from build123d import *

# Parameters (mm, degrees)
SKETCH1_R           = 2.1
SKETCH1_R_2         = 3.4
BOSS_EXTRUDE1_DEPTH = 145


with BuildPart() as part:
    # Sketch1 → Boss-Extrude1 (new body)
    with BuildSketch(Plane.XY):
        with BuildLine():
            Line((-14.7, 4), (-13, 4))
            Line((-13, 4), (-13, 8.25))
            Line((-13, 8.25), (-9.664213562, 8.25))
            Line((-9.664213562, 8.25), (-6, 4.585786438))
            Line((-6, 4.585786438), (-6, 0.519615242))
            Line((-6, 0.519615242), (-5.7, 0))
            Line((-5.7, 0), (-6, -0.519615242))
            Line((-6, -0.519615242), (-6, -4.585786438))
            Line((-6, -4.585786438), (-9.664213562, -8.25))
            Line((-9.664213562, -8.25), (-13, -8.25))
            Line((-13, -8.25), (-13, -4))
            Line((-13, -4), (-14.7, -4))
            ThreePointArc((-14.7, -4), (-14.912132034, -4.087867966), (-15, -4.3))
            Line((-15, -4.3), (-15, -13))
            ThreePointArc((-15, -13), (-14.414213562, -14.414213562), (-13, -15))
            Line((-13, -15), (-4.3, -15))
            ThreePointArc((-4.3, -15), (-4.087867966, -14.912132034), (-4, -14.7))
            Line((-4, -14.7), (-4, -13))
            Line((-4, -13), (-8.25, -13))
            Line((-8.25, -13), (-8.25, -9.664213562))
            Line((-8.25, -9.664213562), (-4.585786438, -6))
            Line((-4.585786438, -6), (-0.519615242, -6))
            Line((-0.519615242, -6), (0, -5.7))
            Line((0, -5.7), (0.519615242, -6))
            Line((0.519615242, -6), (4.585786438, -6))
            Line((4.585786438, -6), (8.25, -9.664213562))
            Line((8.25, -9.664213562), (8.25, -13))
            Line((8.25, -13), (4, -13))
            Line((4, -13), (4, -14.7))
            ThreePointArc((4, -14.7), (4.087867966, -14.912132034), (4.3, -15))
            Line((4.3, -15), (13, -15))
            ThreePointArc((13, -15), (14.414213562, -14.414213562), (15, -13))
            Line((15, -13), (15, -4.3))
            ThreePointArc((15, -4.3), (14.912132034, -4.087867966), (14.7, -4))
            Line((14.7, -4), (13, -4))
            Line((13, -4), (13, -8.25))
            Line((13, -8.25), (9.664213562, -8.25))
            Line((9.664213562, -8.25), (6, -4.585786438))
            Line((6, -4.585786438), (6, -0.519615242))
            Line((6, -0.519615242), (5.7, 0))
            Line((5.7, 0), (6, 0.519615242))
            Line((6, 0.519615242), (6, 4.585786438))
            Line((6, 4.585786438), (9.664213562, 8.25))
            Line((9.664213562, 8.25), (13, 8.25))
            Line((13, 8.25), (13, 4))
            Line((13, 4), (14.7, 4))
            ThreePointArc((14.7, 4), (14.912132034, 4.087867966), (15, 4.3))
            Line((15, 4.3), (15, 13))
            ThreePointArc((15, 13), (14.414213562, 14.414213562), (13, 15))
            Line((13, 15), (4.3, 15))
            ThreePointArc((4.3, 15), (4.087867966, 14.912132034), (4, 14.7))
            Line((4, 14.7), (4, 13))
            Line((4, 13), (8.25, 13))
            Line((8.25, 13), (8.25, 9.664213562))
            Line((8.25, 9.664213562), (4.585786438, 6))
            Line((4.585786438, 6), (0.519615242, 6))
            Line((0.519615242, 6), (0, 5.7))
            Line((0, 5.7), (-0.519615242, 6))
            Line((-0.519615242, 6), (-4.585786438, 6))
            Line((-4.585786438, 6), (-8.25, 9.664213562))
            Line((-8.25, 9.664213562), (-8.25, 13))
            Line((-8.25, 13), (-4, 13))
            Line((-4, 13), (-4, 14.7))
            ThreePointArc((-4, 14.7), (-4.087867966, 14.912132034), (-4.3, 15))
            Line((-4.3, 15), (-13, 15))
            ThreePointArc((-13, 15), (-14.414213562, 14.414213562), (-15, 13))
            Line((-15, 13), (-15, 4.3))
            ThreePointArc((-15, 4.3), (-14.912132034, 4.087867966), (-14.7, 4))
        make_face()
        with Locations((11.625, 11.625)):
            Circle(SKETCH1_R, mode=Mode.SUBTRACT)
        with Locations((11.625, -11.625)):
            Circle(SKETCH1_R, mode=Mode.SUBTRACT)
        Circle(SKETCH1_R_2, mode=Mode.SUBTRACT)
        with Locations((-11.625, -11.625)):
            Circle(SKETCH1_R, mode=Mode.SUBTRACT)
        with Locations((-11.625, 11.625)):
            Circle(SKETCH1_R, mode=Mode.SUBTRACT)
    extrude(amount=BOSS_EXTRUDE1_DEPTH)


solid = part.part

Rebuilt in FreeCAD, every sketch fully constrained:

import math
import FreeCAD as App
import Part
import Sketcher
Q = App.Units.Quantity

doc = App.newDocument("Part")
body = doc.addObject("PartDesign::Body", "Body")

# Sketch on XY plane
sketch1 = body.newObject("Sketcher::SketchObject", "Sketch")
sketch1.AttachmentSupport = (doc.getObject("XY_Plane"), [""])
sketch1.MapMode = "FlatFace"
sketch1.addGeometry([
    Part.LineSegment(App.Vector(-14.7, 4, 0), App.Vector(-13, 4, 0)),  # 0
    Part.LineSegment(App.Vector(-13, 4, 0), App.Vector(-13, 8.25, 0)),  # 1
    Part.LineSegment(App.Vector(-13, 8.25, 0), App.Vector(-9.66, 8.25, 0)),  # 2
    Part.LineSegment(App.Vector(-9.66, 8.25, 0), App.Vector(-6, 4.59, 0)),  # 3
    Part.LineSegment(App.Vector(-6, 4.59, 0), App.Vector(-6, 0.52, 0)),  # 4
    Part.LineSegment(App.Vector(-6, 0.52, 0), App.Vector(-5.7, 0, 0)),  # 5
    Part.LineSegment(App.Vector(-5.7, 0, 0), App.Vector(-6, -0.52, 0)),  # 6
    Part.LineSegment(App.Vector(-6, -0.52, 0), App.Vector(-6, -4.59, 0)),  # 7
    Part.LineSegment(App.Vector(-6, -4.59, 0), App.Vector(-9.66, -8.25, 0)),  # 8
    Part.LineSegment(App.Vector(-9.66, -8.25, 0), App.Vector(-13, -8.25, 0)),  # 9
    Part.LineSegment(App.Vector(-13, -8.25, 0), App.Vector(-13, -4, 0)),  # 10
    Part.LineSegment(App.Vector(-13, -4, 0), App.Vector(-14.7, -4, 0)),  # 11
    Part.ArcOfCircle(Part.Circle(App.Vector(-14.7, -4.3, 0), App.Vector(0, 0, 1), 0.3), math.radians(90), math.radians(180)),  # 12
    Part.LineSegment(App.Vector(-15, -4.3, 0), App.Vector(-15, -13, 0)),  # 13
    Part.ArcOfCircle(Part.Circle(App.Vector(-13, -13, 0), App.Vector(0, 0, 1), 2), math.radians(-180), math.radians(-90)),  # 14
    Part.LineSegment(App.Vector(-13, -15, 0), App.Vector(-4.3, -15, 0)),  # 15
    Part.ArcOfCircle(Part.Circle(App.Vector(-4.3, -14.7, 0), App.Vector(0, 0, 1), 0.3), math.radians(-90), math.radians(0)),  # 16
    Part.LineSegment(App.Vector(-4, -14.7, 0), App.Vector(-4, -13, 0)),  # 17
    Part.LineSegment(App.Vector(-4, -13, 0), App.Vector(-8.25, -13, 0)),  # 18
    Part.LineSegment(App.Vector(-8.25, -13, 0), App.Vector(-8.25, -9.66, 0)),  # 19
    Part.LineSegment(App.Vector(-8.25, -9.66, 0), App.Vector(-4.59, -6, 0)),  # 20
    Part.LineSegment(App.Vector(-4.59, -6, 0), App.Vector(-0.52, -6, 0)),  # 21
    Part.LineSegment(App.Vector(-0.52, -6, 0), App.Vector(0, -5.7, 0)),  # 22
    Part.LineSegment(App.Vector(0, -5.7, 0), App.Vector(0.52, -6, 0)),  # 23
    Part.LineSegment(App.Vector(0.52, -6, 0), App.Vector(4.59, -6, 0)),  # 24
    Part.LineSegment(App.Vector(4.59, -6, 0), App.Vector(8.25, -9.66, 0)),  # 25
    Part.LineSegment(App.Vector(8.25, -9.66, 0), App.Vector(8.25, -13, 0)),  # 26
    Part.LineSegment(App.Vector(8.25, -13, 0), App.Vector(4, -13, 0)),  # 27
    Part.LineSegment(App.Vector(4, -13, 0), App.Vector(4, -14.7, 0)),  # 28
    Part.ArcOfCircle(Part.Circle(App.Vector(4.3, -14.7, 0), App.Vector(0, 0, 1), 0.3), math.radians(-180), math.radians(-90)),  # 29
    Part.LineSegment(App.Vector(4.3, -15, 0), App.Vector(13, -15, 0)),  # 30
    Part.ArcOfCircle(Part.Circle(App.Vector(13, -13, 0), App.Vector(0, 0, 1), 2), math.radians(-90), math.radians(0)),  # 31
    Part.LineSegment(App.Vector(15, -13, 0), App.Vector(15, -4.3, 0)),  # 32
    Part.ArcOfCircle(Part.Circle(App.Vector(14.7, -4.3, 0), App.Vector(0, 0, 1), 0.3), math.radians(0), math.radians(90)),  # 33
    Part.LineSegment(App.Vector(14.7, -4, 0), App.Vector(13, -4, 0)),  # 34
    Part.LineSegment(App.Vector(13, -4, 0), App.Vector(13, -8.25, 0)),  # 35
    Part.LineSegment(App.Vector(13, -8.25, 0), App.Vector(9.66, -8.25, 0)),  # 36
    Part.LineSegment(App.Vector(9.66, -8.25, 0), App.Vector(6, -4.59, 0)),  # 37
    Part.LineSegment(App.Vector(6, -4.59, 0), App.Vector(6, -0.52, 0)),  # 38
    Part.LineSegment(App.Vector(6, -0.52, 0), App.Vector(5.7, 0, 0)),  # 39
    Part.LineSegment(App.Vector(5.7, 0, 0), App.Vector(6, 0.52, 0)),  # 40
    Part.LineSegment(App.Vector(6, 0.52, 0), App.Vector(6, 4.59, 0)),  # 41
    Part.LineSegment(App.Vector(6, 4.59, 0), App.Vector(9.66, 8.25, 0)),  # 42
    Part.LineSegment(App.Vector(9.66, 8.25, 0), App.Vector(13, 8.25, 0)),  # 43
    Part.LineSegment(App.Vector(13, 8.25, 0), App.Vector(13, 4, 0)),  # 44
    Part.LineSegment(App.Vector(13, 4, 0), App.Vector(14.7, 4, 0)),  # 45
    Part.ArcOfCircle(Part.Circle(App.Vector(14.7, 4.3, 0), App.Vector(0, 0, 1), 0.3), math.radians(-90), math.radians(0)),  # 46
    Part.LineSegment(App.Vector(15, 4.3, 0), App.Vector(15, 13, 0)),  # 47
    Part.ArcOfCircle(Part.Circle(App.Vector(13, 13, 0), App.Vector(0, 0, 1), 2), math.radians(0), math.radians(90)),  # 48
    Part.LineSegment(App.Vector(13, 15, 0), App.Vector(4.3, 15, 0)),  # 49
    Part.ArcOfCircle(Part.Circle(App.Vector(4.3, 14.7, 0), App.Vector(0, 0, 1), 0.3), math.radians(90), math.radians(180)),  # 50
    Part.LineSegment(App.Vector(4, 14.7, 0), App.Vector(4, 13, 0)),  # 51
    Part.LineSegment(App.Vector(4, 13, 0), App.Vector(8.25, 13, 0)),  # 52
    Part.LineSegment(App.Vector(8.25, 13, 0), App.Vector(8.25, 9.66, 0)),  # 53
    Part.LineSegment(App.Vector(8.25, 9.66, 0), App.Vector(4.59, 6, 0)),  # 54
    Part.LineSegment(App.Vector(4.59, 6, 0), App.Vector(0.52, 6, 0)),  # 55
    Part.LineSegment(App.Vector(0.52, 6, 0), App.Vector(0, 5.7, 0)),  # 56
    Part.LineSegment(App.Vector(0, 5.7, 0), App.Vector(-0.52, 6, 0)),  # 57
    Part.LineSegment(App.Vector(-0.52, 6, 0), App.Vector(-4.59, 6, 0)),  # 58
    Part.LineSegment(App.Vector(-4.59, 6, 0), App.Vector(-8.25, 9.66, 0)),  # 59
    Part.LineSegment(App.Vector(-8.25, 9.66, 0), App.Vector(-8.25, 13, 0)),  # 60
    Part.LineSegment(App.Vector(-8.25, 13, 0), App.Vector(-4, 13, 0)),  # 61
    Part.LineSegment(App.Vector(-4, 13, 0), App.Vector(-4, 14.7, 0)),  # 62
    Part.ArcOfCircle(Part.Circle(App.Vector(-4.3, 14.7, 0), App.Vector(0, 0, 1), 0.3), math.radians(0), math.radians(90)),  # 63
    Part.LineSegment(App.Vector(-4.3, 15, 0), App.Vector(-13, 15, 0)),  # 64
    Part.ArcOfCircle(Part.Circle(App.Vector(-13, 13, 0), App.Vector(0, 0, 1), 2), math.radians(90), math.radians(180)),  # 65
    Part.LineSegment(App.Vector(-15, 13, 0), App.Vector(-15, 4.3, 0)),  # 66
    Part.ArcOfCircle(Part.Circle(App.Vector(-14.7, 4.3, 0), App.Vector(0, 0, 1), 0.3), math.radians(-180), math.radians(-90)),  # 67
    Part.Circle(App.Vector(-11.62, -11.62, 0), App.Vector(0, 0, 1), 2.1),  # 68
    Part.Circle(App.Vector(11.62, -11.62, 0), App.Vector(0, 0, 1), 2.1),  # 69
    Part.Circle(App.Vector(-11.62, 11.62, 0), App.Vector(0, 0, 1), 2.1),  # 70
    Part.Circle(App.Vector(0, 0, 0), App.Vector(0, 0, 1), 3.4),  # 71
    Part.Circle(App.Vector(11.62, 11.62, 0), App.Vector(0, 0, 1), 2.1),  # 72
], False)
sketch1.addConstraint([
    Sketcher.Constraint("Coincident", 0, 2, 1, 1),
    Sketcher.Constraint("Coincident", 1, 2, 2, 1),
    Sketcher.Constraint("Coincident", 2, 2, 3, 1),
    Sketcher.Constraint("Coincident", 3, 2, 4, 1),
    Sketcher.Constraint("Coincident", 4, 2, 5, 1),
    Sketcher.Constraint("Coincident", 5, 2, 6, 1),
    Sketcher.Constraint("Coincident", 6, 2, 7, 1),
    Sketcher.Constraint("Coincident", 7, 2, 8, 1),
    Sketcher.Constraint("Coincident", 8, 2, 9, 1),
    Sketcher.Constraint("Coincident", 9, 2, 10, 1),
    Sketcher.Constraint("Coincident", 10, 2, 11, 1),
    Sketcher.Constraint("Tangent", 11, 2, 12, 1),
    Sketcher.Constraint("Tangent", 12, 2, 13, 1),
    Sketcher.Constraint("Tangent", 13, 2, 14, 1),
    Sketcher.Constraint("Tangent", 14, 2, 15, 1),
    Sketcher.Constraint("Tangent", 15, 2, 16, 1),
    Sketcher.Constraint("Tangent", 16, 2, 17, 1),
    Sketcher.Constraint("Coincident", 17, 2, 18, 1),
    Sketcher.Constraint("Coincident", 18, 2, 19, 1),
    Sketcher.Constraint("Coincident", 19, 2, 20, 1),
    Sketcher.Constraint("Coincident", 20, 2, 21, 1),
    Sketcher.Constraint("Coincident", 21, 2, 22, 1),
    Sketcher.Constraint("Coincident", 22, 2, 23, 1),
    Sketcher.Constraint("Coincident", 23, 2, 24, 1),
    Sketcher.Constraint("Coincident", 24, 2, 25, 1),
    Sketcher.Constraint("Coincident", 25, 2, 26, 1),
    Sketcher.Constraint("Coincident", 26, 2, 27, 1),
    Sketcher.Constraint("Coincident", 27, 2, 28, 1),
    Sketcher.Constraint("Tangent", 28, 2, 29, 1),
    Sketcher.Constraint("Tangent", 29, 2, 30, 1),
    Sketcher.Constraint("Tangent", 30, 2, 31, 1),
    Sketcher.Constraint("Tangent", 31, 2, 32, 1),
    Sketcher.Constraint("Tangent", 32, 2, 33, 1),
    Sketcher.Constraint("Tangent", 33, 2, 34, 1),
    Sketcher.Constraint("Coincident", 34, 2, 35, 1),
    Sketcher.Constraint("Coincident", 35, 2, 36, 1),
    Sketcher.Constraint("Coincident", 36, 2, 37, 1),
    Sketcher.Constraint("Coincident", 37, 2, 38, 1),
    Sketcher.Constraint("Coincident", 38, 2, 39, 1),
    Sketcher.Constraint("Coincident", 39, 2, 40, 1),
    Sketcher.Constraint("Coincident", 40, 2, 41, 1),
    Sketcher.Constraint("Coincident", 41, 2, 42, 1),
    Sketcher.Constraint("Coincident", 42, 2, 43, 1),
    Sketcher.Constraint("Coincident", 43, 2, 44, 1),
    Sketcher.Constraint("Coincident", 44, 2, 45, 1),
    Sketcher.Constraint("Tangent", 45, 2, 46, 1),
    Sketcher.Constraint("Tangent", 46, 2, 47, 1),
    Sketcher.Constraint("Tangent", 47, 2, 48, 1),
    Sketcher.Constraint("Tangent", 48, 2, 49, 1),
    Sketcher.Constraint("Tangent", 49, 2, 50, 1),
    Sketcher.Constraint("Tangent", 50, 2, 51, 1),
    Sketcher.Constraint("Coincident", 51, 2, 52, 1),
    Sketcher.Constraint("Coincident", 52, 2, 53, 1),
    Sketcher.Constraint("Coincident", 53, 2, 54, 1),
    Sketcher.Constraint("Coincident", 54, 2, 55, 1),
    Sketcher.Constraint("Coincident", 55, 2, 56, 1),
    Sketcher.Constraint("Coincident", 56, 2, 57, 1),
    Sketcher.Constraint("Coincident", 57, 2, 58, 1),
    Sketcher.Constraint("Coincident", 58, 2, 59, 1),
    Sketcher.Constraint("Coincident", 59, 2, 60, 1),
    Sketcher.Constraint("Coincident", 60, 2, 61, 1),
    Sketcher.Constraint("Coincident", 61, 2, 62, 1),
    Sketcher.Constraint("Tangent", 62, 2, 63, 1),
    Sketcher.Constraint("Tangent", 63, 2, 64, 1),
    Sketcher.Constraint("Tangent", 64, 2, 65, 1),
    Sketcher.Constraint("Tangent", 65, 2, 66, 1),
    Sketcher.Constraint("Tangent", 66, 2, 67, 1),
    Sketcher.Constraint("Tangent", 67, 2, 0, 1),
    Sketcher.Constraint("Horizontal", 0),
    Sketcher.Constraint("Vertical", 1),
    Sketcher.Constraint("Horizontal", 2),
    Sketcher.Constraint("Vertical", 4),
    Sketcher.Constraint("Vertical", 7),
    Sketcher.Constraint("Horizontal", 9),
    Sketcher.Constraint("Vertical", 10),
    Sketcher.Constraint("Horizontal", 11),
    Sketcher.Constraint("Vertical", 13),
    Sketcher.Constraint("Horizontal", 15),
    Sketcher.Constraint("Vertical", 17),
    Sketcher.Constraint("Horizontal", 18),
    Sketcher.Constraint("Vertical", 19),
    Sketcher.Constraint("Horizontal", 21),
    Sketcher.Constraint("Horizontal", 24),
    Sketcher.Constraint("Vertical", 26),
    Sketcher.Constraint("Horizontal", 27),
    Sketcher.Constraint("Vertical", 28),
    Sketcher.Constraint("Horizontal", 30),
    Sketcher.Constraint("Vertical", 32),
    Sketcher.Constraint("Horizontal", 34),
    Sketcher.Constraint("Vertical", 35),
    Sketcher.Constraint("Horizontal", 36),
    Sketcher.Constraint("Vertical", 38),
    Sketcher.Constraint("Vertical", 41),
    Sketcher.Constraint("Horizontal", 43),
    Sketcher.Constraint("Vertical", 44),
    Sketcher.Constraint("Horizontal", 45),
    Sketcher.Constraint("Vertical", 47),
    Sketcher.Constraint("Horizontal", 49),
    Sketcher.Constraint("Vertical", 51),
    Sketcher.Constraint("Horizontal", 52),
    Sketcher.Constraint("Vertical", 53),
    Sketcher.Constraint("Horizontal", 55),
    Sketcher.Constraint("Horizontal", 58),
    Sketcher.Constraint("Vertical", 60),
    Sketcher.Constraint("Horizontal", 61),
    Sketcher.Constraint("Vertical", 62),
    Sketcher.Constraint("Horizontal", 64),
    Sketcher.Constraint("Vertical", 66),
    Sketcher.Constraint("Coincident", 71, 3, -1, 1),
    Sketcher.Constraint("Equal", 12, 16),
    Sketcher.Constraint("Equal", 16, 29),
    Sketcher.Constraint("Equal", 14, 31),
    Sketcher.Constraint("Equal", 29, 33),
    Sketcher.Constraint("Equal", 33, 46),
    Sketcher.Constraint("Equal", 31, 48),
    Sketcher.Constraint("Equal", 46, 50),
    Sketcher.Constraint("Equal", 50, 63),
    Sketcher.Constraint("Equal", 48, 65),
    Sketcher.Constraint("Equal", 63, 67),
    Sketcher.Constraint("Equal", 68, 69),
    Sketcher.Constraint("Equal", 69, 70),
    Sketcher.Constraint("Equal", 70, 72),
    Sketcher.Constraint("Symmetric", 12, 3, 46, 3, -1, 1),
    Sketcher.Constraint("Symmetric", 16, 3, 50, 3, -1, 1),
    Sketcher.Constraint("Symmetric", 29, 3, 63, 3, -1, 1),
    Sketcher.Constraint("Symmetric", 33, 3, 67, 3, -1, 1),
    Sketcher.Constraint("Symmetric", 69, 3, 70, 3, -1, 1),
    Sketcher.Constraint("Symmetric", 68, 3, 72, 3, -1, 1),
    Sketcher.Constraint("Symmetric", 1, 2, 35, 2, -1, 1),
    Sketcher.Constraint("Symmetric", 3, 2, 37, 2, -1, 1),
    Sketcher.Constraint("Symmetric", 5, 2, 39, 2, -1, 1),
    Sketcher.Constraint("Symmetric", 6, 2, 40, 2, -1, 1),
    Sketcher.Constraint("Symmetric", 8, 2, 42, 2, -1, 1),
    Sketcher.Constraint("Symmetric", 18, 2, 52, 2, -1, 1),
    Sketcher.Constraint("Symmetric", 20, 2, 54, 2, -1, 1),
    Sketcher.Constraint("Symmetric", 22, 2, 56, 2, -1, 1),
    Sketcher.Constraint("Symmetric", 23, 2, 57, 2, -1, 1),
    Sketcher.Constraint("Symmetric", 25, 2, 59, 2, -1, 1),
    Sketcher.Constraint("Symmetric", 16, 3, 29, 3, -2),
    Sketcher.Constraint("Symmetric", 12, 3, 33, 3, -2),
    Sketcher.Constraint("Symmetric", 68, 3, 69, 3, -2),
    Sketcher.Constraint("Symmetric", 21, 2, 23, 2, -2),
    Sketcher.Constraint("Symmetric", 19, 2, 25, 2, -2),
    Sketcher.Constraint("Symmetric", 9, 2, 35, 2, -2),
    Sketcher.Constraint("Symmetric", 7, 2, 37, 2, -2),
    Sketcher.Constraint("PointOnObject", 5, 2, -1),
    Sketcher.Constraint("PointOnObject", 22, 2, -2),
    Sketcher.Constraint("Perpendicular", 3, 8),
    Sketcher.Constraint("Parallel", 8, 20),
    Sketcher.Constraint("Perpendicular", 5, 22),
    Sketcher.Constraint("Perpendicular", 6, 23),
    Sketcher.Constraint("Perpendicular", 20, 25),
    Sketcher.Constraint("Parallel", 25, 37),
    Sketcher.Constraint("Perpendicular", 22, 39),
    Sketcher.Constraint("Perpendicular", 37, 42),
    Sketcher.Constraint("Parallel", 42, 54),
    Sketcher.Constraint("Perpendicular", 39, 56),
    Sketcher.Constraint("Perpendicular", 54, 59),
    Sketcher.Constraint("Horizontal", 13, 2, 17, 2),
    Sketcher.Constraint("Horizontal", 18, 2, 26, 2),
    Sketcher.Constraint("Horizontal", 52, 2, 60, 2),
    Sketcher.Constraint("Vertical", 65, 3, 0, 2),
    Sketcher.Constraint("Vertical", 2, 2, 8, 2),
    Sketcher.Constraint("Vertical", 35, 2, 43, 2),
    Sketcher.Constraint("Equal", 61, 1),
    Sketcher.Constraint("Equal", 58, 4),
    Sketcher.Constraint("Equal", 64, 13),
    Sketcher.Constraint("Equal", 43, 19),
    Sketcher.Constraint("Equal", 8, 20),
    Sketcher.Constraint("Equal", 6, 22),
    Sketcher.Constraint("Radius", 14, Q("2 mm")),
    Sketcher.Constraint("Diameter", 68, Q("4.2 mm")),
    Sketcher.Constraint("Diameter", 71, Q("6.8 mm")),
    Sketcher.Constraint("Radius", 12, Q("0.3 mm")),
    Sketcher.Constraint("Angle", 5, Q("-60 deg")),
    Sketcher.Constraint("DistanceX", 15, 1, 15, 2, Q("8.7 mm")),
    Sketcher.Constraint("DistanceX", 14, 3, -1, 1, Q("13 mm")),
    Sketcher.Constraint("DistanceX", 3, 2, -1, 1, Q("6 mm")),
    Sketcher.Constraint("Distance", 5, Q("0.6 mm")),
    Sketcher.Constraint("DistanceX", 18, 2, 18, 1, Q("4.25 mm")),
    Sketcher.Constraint("DistanceX", 68, 3, -1, 1, Q("11.625 mm")),
    Sketcher.Constraint("DistanceY", 68, 3, -1, 1, Q("11.625 mm")),
    Sketcher.Constraint("DistanceX", 21, 1, 21, 2, Q("4.066171 mm")),
])
pad1 = body.newObject("PartDesign::Pad", "Pad")
pad1.Profile = sketch1
pad1.Length = 145

doc.recompute()
